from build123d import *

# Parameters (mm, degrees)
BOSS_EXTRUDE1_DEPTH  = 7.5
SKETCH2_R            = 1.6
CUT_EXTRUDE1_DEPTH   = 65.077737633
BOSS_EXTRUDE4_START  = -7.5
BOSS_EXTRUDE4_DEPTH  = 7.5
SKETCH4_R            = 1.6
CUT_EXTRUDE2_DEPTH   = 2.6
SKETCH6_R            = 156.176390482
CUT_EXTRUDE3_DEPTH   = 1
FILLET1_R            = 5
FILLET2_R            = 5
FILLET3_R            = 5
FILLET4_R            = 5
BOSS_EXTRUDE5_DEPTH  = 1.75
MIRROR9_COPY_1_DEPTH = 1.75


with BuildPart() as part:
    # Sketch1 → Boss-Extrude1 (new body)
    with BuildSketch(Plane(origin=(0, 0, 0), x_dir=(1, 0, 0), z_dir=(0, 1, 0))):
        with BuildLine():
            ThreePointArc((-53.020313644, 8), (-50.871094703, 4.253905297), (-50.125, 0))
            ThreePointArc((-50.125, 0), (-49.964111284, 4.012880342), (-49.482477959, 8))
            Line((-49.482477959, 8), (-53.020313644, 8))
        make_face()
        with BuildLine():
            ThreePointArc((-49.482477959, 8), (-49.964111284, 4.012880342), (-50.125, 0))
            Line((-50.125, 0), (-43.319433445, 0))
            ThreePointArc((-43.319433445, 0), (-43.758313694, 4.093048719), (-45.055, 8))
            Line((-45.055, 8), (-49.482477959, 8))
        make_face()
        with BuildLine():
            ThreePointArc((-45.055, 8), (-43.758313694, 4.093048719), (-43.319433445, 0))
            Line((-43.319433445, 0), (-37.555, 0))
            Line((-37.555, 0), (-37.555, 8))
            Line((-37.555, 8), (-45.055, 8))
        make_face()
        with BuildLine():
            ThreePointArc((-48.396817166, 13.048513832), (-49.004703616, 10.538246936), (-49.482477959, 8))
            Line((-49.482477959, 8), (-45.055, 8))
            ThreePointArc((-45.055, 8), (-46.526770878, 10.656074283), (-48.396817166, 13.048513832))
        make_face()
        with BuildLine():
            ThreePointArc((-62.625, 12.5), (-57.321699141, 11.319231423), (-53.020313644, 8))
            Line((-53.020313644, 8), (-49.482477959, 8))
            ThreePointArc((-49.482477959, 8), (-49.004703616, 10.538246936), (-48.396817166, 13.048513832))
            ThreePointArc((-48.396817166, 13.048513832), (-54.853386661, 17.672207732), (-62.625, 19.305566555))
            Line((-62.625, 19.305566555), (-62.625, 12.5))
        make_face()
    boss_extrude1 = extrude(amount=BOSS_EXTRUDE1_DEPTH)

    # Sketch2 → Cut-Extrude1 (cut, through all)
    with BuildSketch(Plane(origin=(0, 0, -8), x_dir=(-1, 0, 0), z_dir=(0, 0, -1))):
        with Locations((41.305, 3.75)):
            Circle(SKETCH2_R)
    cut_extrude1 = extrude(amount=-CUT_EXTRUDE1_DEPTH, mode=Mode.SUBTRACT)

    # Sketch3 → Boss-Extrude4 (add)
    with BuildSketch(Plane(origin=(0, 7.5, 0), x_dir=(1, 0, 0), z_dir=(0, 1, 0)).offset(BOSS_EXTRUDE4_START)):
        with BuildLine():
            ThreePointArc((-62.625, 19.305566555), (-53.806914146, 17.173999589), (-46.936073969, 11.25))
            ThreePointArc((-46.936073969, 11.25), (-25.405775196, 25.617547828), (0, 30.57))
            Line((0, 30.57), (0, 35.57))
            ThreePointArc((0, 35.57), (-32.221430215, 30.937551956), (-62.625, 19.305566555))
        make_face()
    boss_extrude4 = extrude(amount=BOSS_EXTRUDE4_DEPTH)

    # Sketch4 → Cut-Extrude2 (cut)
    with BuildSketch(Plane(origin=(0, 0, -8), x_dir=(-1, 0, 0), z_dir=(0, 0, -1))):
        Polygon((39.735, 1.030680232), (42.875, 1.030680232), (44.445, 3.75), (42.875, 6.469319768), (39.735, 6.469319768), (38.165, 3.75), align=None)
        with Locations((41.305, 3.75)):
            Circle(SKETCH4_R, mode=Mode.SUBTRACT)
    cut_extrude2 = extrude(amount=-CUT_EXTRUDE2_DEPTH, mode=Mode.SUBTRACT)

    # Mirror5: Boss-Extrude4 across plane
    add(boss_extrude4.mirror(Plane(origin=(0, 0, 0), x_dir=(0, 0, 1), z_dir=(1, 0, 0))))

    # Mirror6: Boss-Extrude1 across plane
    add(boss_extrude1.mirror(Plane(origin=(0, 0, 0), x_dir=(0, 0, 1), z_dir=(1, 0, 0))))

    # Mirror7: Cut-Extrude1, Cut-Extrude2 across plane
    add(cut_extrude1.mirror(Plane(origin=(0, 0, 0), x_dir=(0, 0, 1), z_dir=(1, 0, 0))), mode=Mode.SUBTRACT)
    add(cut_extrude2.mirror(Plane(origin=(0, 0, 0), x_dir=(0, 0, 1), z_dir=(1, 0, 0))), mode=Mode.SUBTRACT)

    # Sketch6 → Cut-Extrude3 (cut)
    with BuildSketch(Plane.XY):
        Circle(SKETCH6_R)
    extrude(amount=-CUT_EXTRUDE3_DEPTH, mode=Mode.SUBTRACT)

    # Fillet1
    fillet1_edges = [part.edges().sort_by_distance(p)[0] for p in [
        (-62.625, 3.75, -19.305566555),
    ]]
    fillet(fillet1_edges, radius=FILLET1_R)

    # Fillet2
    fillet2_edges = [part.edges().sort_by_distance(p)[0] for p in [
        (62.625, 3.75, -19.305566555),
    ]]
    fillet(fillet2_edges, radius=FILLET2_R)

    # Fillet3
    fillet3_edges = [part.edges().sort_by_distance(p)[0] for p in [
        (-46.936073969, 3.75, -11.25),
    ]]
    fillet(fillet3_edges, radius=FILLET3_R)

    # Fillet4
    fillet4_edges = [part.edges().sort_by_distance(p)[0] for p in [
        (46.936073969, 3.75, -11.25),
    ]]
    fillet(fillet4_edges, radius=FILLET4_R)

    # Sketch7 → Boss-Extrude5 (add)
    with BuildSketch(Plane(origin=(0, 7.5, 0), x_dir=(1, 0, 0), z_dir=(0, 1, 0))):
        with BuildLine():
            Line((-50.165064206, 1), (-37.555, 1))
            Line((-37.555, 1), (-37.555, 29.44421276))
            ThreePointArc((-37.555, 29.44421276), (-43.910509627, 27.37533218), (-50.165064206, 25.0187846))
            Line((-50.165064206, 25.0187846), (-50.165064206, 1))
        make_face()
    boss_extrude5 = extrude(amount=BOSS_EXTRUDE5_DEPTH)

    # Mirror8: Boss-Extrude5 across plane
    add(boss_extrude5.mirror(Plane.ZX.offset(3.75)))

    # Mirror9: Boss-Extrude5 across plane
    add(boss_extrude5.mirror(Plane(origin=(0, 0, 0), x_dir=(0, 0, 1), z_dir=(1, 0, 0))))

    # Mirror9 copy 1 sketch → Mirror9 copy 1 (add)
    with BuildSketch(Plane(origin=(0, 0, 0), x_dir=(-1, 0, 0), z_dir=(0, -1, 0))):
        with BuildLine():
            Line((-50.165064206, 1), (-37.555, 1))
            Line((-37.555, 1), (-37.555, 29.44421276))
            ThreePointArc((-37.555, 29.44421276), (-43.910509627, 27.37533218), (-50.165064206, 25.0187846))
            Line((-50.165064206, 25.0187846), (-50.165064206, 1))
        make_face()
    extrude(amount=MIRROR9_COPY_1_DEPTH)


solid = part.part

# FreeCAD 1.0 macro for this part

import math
import FreeCAD as App
import Part
import Sketcher
from FreeCAD import Vector
Q = App.Units.Quantity


def edges_at(feature, points):
    """Names of the edges that pass closest to the given points."""
    edges = feature.Shape.Edges
    near = lambda p: min(range(len(edges)), key=lambda i: edges[i].distToShape(Part.Vertex(*p))[0])
    return sorted({f"Edge{near(p) + 1}" for p in points})


def add_polygon(sketch, points):
    """Adds a closed chain of lines whose ends are joined by coincident constraints."""
    first, n = sketch.GeometryCount, len(points)
    for a, b in zip(points, points[1:] + points[:1]):
        sketch.addGeometry(Part.LineSegment(App.Vector(*a, 0), App.Vector(*b, 0)), False)
    for i in range(n):
        sketch.addConstraint(Sketcher.Constraint("Coincident", first + i, 2, first + (i + 1) % n, 1))

doc = App.newDocument("Part")
body = doc.addObject("PartDesign::Body", "Body")

sketch1 = body.newObject("Sketcher::SketchObject", "Sketch")
sketch1.AttachmentSupport = (doc.getObject("XZ_Plane"), [""])
sketch1.MapMode = "FlatFace"
sketch1.addGeometry([
    Part.ArcOfCircle(Part.Circle(Vector(-62.625, 0, 0), Vector(0, 0, 1), 12.5), math.radians(-39.79182), math.radians(0)),
    Part.LineSegment(Vector(-50.125, 0, 0), Vector(-37.555, 0, 0)),
    Part.LineSegment(Vector(-37.555, 0, 0), Vector(-37.555, -8, 0)),
    Part.LineSegment(Vector(-37.555, -8, 0), Vector(-45.055, -8, 0)),
    Part.ArcOfCircle(Part.Circle(Vector(-62.625, 0, 0), Vector(0, 0, 1), 19.305567), math.radians(-42.523602), math.radians(-24.480798)),
    Part.ArcOfCircle(Part.Circle(Vector(-62.625, 0, 0), Vector(0, 0, 1), 19.305567), math.radians(-90), math.radians(-42.523602)),
    Part.LineSegment(Vector(-62.625, -19.305567, 0), Vector(-62.625, -12.5, 0)),
    Part.ArcOfCircle(Part.Circle(Vector(-62.625, 0, 0), Vector(0, 0, 1), 12.5), math.radians(-90), math.radians(-39.791819)),
], False)
sketch1.addConstraint([
    Sketcher.Constraint("Coincident", 0, 2, 1, 1),
    Sketcher.Constraint("Coincident", 1, 2, 2, 1),
    Sketcher.Constraint("Coincident", 2, 2, 3, 1),
    Sketcher.Constraint("Coincident", 3, 2, 4, 2),
    Sketcher.Constraint("Tangent", 4, 1, 5, 2),
    Sketcher.Constraint("Coincident", 5, 1, 6, 1),
    Sketcher.Constraint("Coincident", 6, 2, 7, 1),
    Sketcher.Constraint("Tangent", 7, 2, 0, 1),
    Sketcher.Constraint("Horizontal", 1),
    Sketcher.Constraint("Vertical", 2),
    Sketcher.Constraint("Horizontal", 3),
    Sketcher.Constraint("Vertical", 6),
    Sketcher.Constraint("Coincident", 4, 3, 0, 3),
    Sketcher.Constraint("Equal", 4, 5),
    Sketcher.Constraint("Equal", 0, 7),
    Sketcher.Constraint("PointOnObject", 0, 3, -1),
    Sketcher.Constraint("PointOnObject", 0, 2, -1),
    Sketcher.Constraint("Horizontal", 3, 2, 7, 2),
    Sketcher.Constraint("Vertical", 7, 3, 5, 1),
    Sketcher.Constraint("Radius", 0, Q("12.5 mm")),
    Sketcher.Constraint("DistanceY", 2, 2, 2, 1, Q("8 mm")),
    Sketcher.Constraint("DistanceX", 3, 2, 3, 1, Q("7.5 mm")),
    Sketcher.Constraint("DistanceX", 1, 1, 1, 2, Q("12.57 mm")),
    Sketcher.Constraint("DistanceX", 0, 3, -1, 1, Q("62.625 mm")),
    Sketcher.Constraint("DistanceX", 4, 1, -1, 1, Q("48.396817 mm")),
])
pad1 = body.newObject("PartDesign::Pad", "Pad")
pad1.Profile = sketch1
pad1.Length = 7.5
pad1.Reversed = True

sketch2 = body.newObject("Sketcher::SketchObject", "Sketch001")
sketch2.AttachmentSupport = (doc.getObject("XY_Plane"), [""])
sketch2.MapMode = "FlatFace"
sketch2.AttachmentOffset = App.Placement(Vector(0, 0, -8), App.Rotation())
sketch2.addGeometry(Part.Circle(Vector(-41.305, 3.75, 0), Vector(0, 0, 1), 1.6), False)
sketch2.addConstraint([
    Sketcher.Constraint("Diameter", 0, Q("3.2 mm")),
    Sketcher.Constraint("DistanceY", -1, 1, 0, 3, Q("3.75 mm")),
    Sketcher.Constraint("DistanceX", 0, 3, -1, 1, Q("41.305 mm")),
])
pocket1 = body.newObject("PartDesign::Pocket", "Pocket")
pocket1.Profile = sketch2
pocket1.Type = "ThroughAll"
pocket1.Reversed = True

sketch3 = body.newObject("Sketcher::SketchObject", "Sketch002")
sketch3.AttachmentSupport = (doc.getObject("XZ_Plane"), [""])
sketch3.MapMode = "FlatFace"
sketch3.addGeometry([
    Part.ArcOfCircle(Part.Circle(Vector(-62.625, 0, 0), Vector(0, 0, 1), 19.305567), math.radians(-90), math.radians(-35.643032)),
    Part.ArcOfCircle(Part.Circle(Vector(-0.358421, 35.232579, 0), Vector(0, 0, 1), 65.803555), math.radians(-135.058535), math.radians(-89.687918)),
    Part.LineSegment(Vector(0, -30.57, 0), Vector(0, -35.57, 0)),
    Part.ArcOfCircle(Part.Circle(Vector(4.612587, 110.889113, 0), Vector(0, 0, 1), 146.531729), math.radians(-117.313587), math.radians(-91.803879)),
], False)
sketch3.addConstraint([
    Sketcher.Constraint("Coincident", 0, 2, 1, 1),
    Sketcher.Constraint("Coincident", 1, 2, 2, 1),
    Sketcher.Constraint("Coincident", 2, 2, 3, 2),
    Sketcher.Constraint("Coincident", 3, 1, 0, 1),
    Sketcher.Constraint("Vertical", 2),
    Sketcher.Constraint("PointOnObject", 0, 3, -1),
    Sketcher.Constraint("PointOnObject", 1, 2, -2),
    Sketcher.Constraint("Vertical", 0, 3, 3, 1),
    Sketcher.Constraint("DistanceY", 2, 2, 2, 1, Q("5 mm")),
    Sketcher.Constraint("DistanceY", 0, 2, -1, 1, Q("11.25 mm")),
    Sketcher.Constraint("DistanceY", 1, 2, -1, 1, Q("30.57 mm")),
    Sketcher.Constraint("Radius", 3, Q("146.531729 mm")),
    Sketcher.Constraint("DistanceX", 0, 3, -1, 1, Q("62.625 mm")),
    Sketcher.Constraint("Radius", 0, Q("19.305567 mm")),
    Sketcher.Constraint("Radius", 1, Q("65.803555 mm")),
])
pad2 = body.newObject("PartDesign::Pad", "Pad001")
pad2.Profile = sketch3
pad2.Length = 7.5
pad2.Reversed = True

sketch4 = body.newObject("Sketcher::SketchObject", "Sketch003")
sketch4.AttachmentSupport = (doc.getObject("XY_Plane"), [""])
sketch4.MapMode = "FlatFace"
sketch4.AttachmentOffset = App.Placement(Vector(0, 0, -8), App.Rotation())
add_polygon(sketch4, [(-39.735, 1.03068), (-42.875, 1.03068), (-44.445, 3.75), (-42.875, 6.46932), (-39.735, 6.46932), (-38.165, 3.75)])
sketch4.addGeometry(Part.Circle(Vector(-41.305, 3.75, 0), Vector(0, 0, 1), 1.6), False)
sketch4.addConstraint([
    Sketcher.Constraint("Horizontal", 0),
    Sketcher.Constraint("Horizontal", 3),
    Sketcher.Constraint("Parallel", 1, 4),
    Sketcher.Constraint("Parallel", 2, 5),
    Sketcher.Constraint("Horizontal", 6, 3, 1, 2),
    Sketcher.Constraint("Horizontal", 1, 2, 4, 2),
    Sketcher.Constraint("Vertical", 0, 2, 2, 2),
    Sketcher.Constraint("Vertical", 3, 2, 5, 2),
    Sketcher.Constraint("Diameter", 6, Q("3.2 mm")),
    Sketcher.Constraint("Angle", 1, Q("120 deg")),
    Sketcher.Constraint("DistanceX", 0, 2, 0, 1, Q("3.14 mm")),
    Sketcher.Constraint("Distance", 1, Q("3.14 mm")),
    Sketcher.Constraint("DistanceY", -1, 1, 6, 3, Q("3.75 mm")),
    Sketcher.Constraint("DistanceX", 0, 2, 6, 3, Q("1.57 mm")),
    Sketcher.Constraint("DistanceX", 6, 3, -1, 1, Q("41.305 mm")),
])
pocket2 = body.newObject("PartDesign::Pocket", "Pocket001")
pocket2.Profile = sketch4
pocket2.Length = 2.6
pocket2.Reversed = True
doc.recompute()

mirrored = body.newObject("PartDesign::Mirrored", "Mirrored")
mirrored.Originals = [pad2]
mirrored.MirrorPlane = (doc.getObject("YZ_Plane"), [""])
body.Tip = mirrored
doc.recompute()

mirrored2 = body.newObject("PartDesign::Mirrored", "Mirrored001")
mirrored2.Originals = [pad1]
mirrored2.MirrorPlane = (doc.getObject("YZ_Plane"), [""])
body.Tip = mirrored2
doc.recompute()

mirrored3 = body.newObject("PartDesign::Mirrored", "Mirrored002")
mirrored3.Originals = [pocket1, pocket2]
mirrored3.MirrorPlane = (doc.getObject("YZ_Plane"), [""])
body.Tip = mirrored3

sketch5 = body.newObject("Sketcher::SketchObject", "Sketch004")
sketch5.AttachmentSupport = (doc.getObject("XY_Plane"), [""])
sketch5.MapMode = "FlatFace"
sketch5.addGeometry(Part.Circle(Vector(0, 0, 0), Vector(0, 0, 1), 156.17639), False)
sketch5.addConstraint([
    Sketcher.Constraint("Coincident", 0, 3, -1, 1),
    Sketcher.Constraint("Diameter", 0, Q("312.352781 mm")),
])
pocket3 = body.newObject("PartDesign::Pocket", "Pocket002")
pocket3.Profile = sketch5
pocket3.Length = 1
doc.recompute()

fillet = body.newObject("PartDesign::Fillet", "Fillet")
fillet.Base = (pocket3, edges_at(pocket3, [(-62.625, 3.75, -19.306)]))
fillet.Radius = 5
doc.recompute()

fillet2 = body.newObject("PartDesign::Fillet", "Fillet001")
fillet2.Base = (fillet, edges_at(fillet, [(62.625, 3.75, -19.306)]))
fillet2.Radius = 5
doc.recompute()

fillet3 = body.newObject("PartDesign::Fillet", "Fillet002")
fillet3.Base = (fillet2, edges_at(fillet2, [(-46.936, 3.75, -11.25)]))
fillet3.Radius = 5
doc.recompute()

fillet4 = body.newObject("PartDesign::Fillet", "Fillet003")
fillet4.Base = (fillet3, edges_at(fillet3, [(46.936, 3.75, -11.25)]))
fillet4.Radius = 5

sketch6 = body.newObject("Sketcher::SketchObject", "Sketch005")
sketch6.AttachmentSupport = (doc.getObject("XZ_Plane"), [""])
sketch6.MapMode = "FlatFace"
sketch6.AttachmentOffset = App.Placement(Vector(0, 0, -7.5), App.Rotation())
sketch6.addGeometry([
    Part.LineSegment(Vector(-50.165064, -1, 0), Vector(-37.555, -1, 0)),
    Part.LineSegment(Vector(-37.555, -1, 0), Vector(-37.555, -29.444213, 0)),
    Part.ArcOfCircle(Part.Circle(Vector(4.612587, 110.889112, 0), Vector(0, 0, 1), 146.531729), math.radians(-111.95189), math.radians(-106.724558)),
    Part.LineSegment(Vector(-50.165064, -25.018785, 0), Vector(-50.165064, -1, 0)),
], False)
sketch6.addConstraint([
    Sketcher.Constraint("Coincident", 0, 2, 1, 1),
    Sketcher.Constraint("Coincident", 1, 2, 2, 2),
    Sketcher.Constraint("Coincident", 2, 1, 3, 1),
    Sketcher.Constraint("Coincident", 3, 2, 0, 1),
    Sketcher.Constraint("Horizontal", 0),
    Sketcher.Constraint("Vertical", 1),
    Sketcher.Constraint("Vertical", 3),
    Sketcher.Constraint("DistanceY", 0, 2, -1, 1, Q("1 mm")),
    Sketcher.Constraint("Radius", 2, Q("146.531729 mm")),
    Sketcher.Constraint("DistanceX", 0, 2, -1, 1, Q("37.555 mm")),
    Sketcher.Constraint("DistanceX", 0, 1, 0, 2, Q("12.610064 mm")),
    Sketcher.Constraint("DistanceY", 1, 2, 1, 1, Q("28.444213 mm")),
    Sketcher.Constraint("DistanceY", 3, 1, 3, 2, Q("24.018785 mm")),
])
pad3 = body.newObject("PartDesign::Pad", "Pad002")
pad3.Profile = sketch6
pad3.Length = 1.75
pad3.Reversed = True
doc.recompute()

datumplane = body.newObject("PartDesign::Plane", "DatumPlane")
datumplane.AttachmentSupport = (doc.getObject("XZ_Plane"), [""])
datumplane.MapMode = "FlatFace"
datumplane.AttachmentOffset = App.Placement(Vector(0, 0, -3.75), App.Rotation())
mirrored4 = body.newObject("PartDesign::Mirrored", "Mirrored003")
mirrored4.Originals = [pad3]
mirrored4.MirrorPlane = (datumplane, [""])
body.Tip = mirrored4
doc.recompute()

mirrored5 = body.newObject("PartDesign::Mirrored", "Mirrored004")
mirrored5.Originals = [pad3]
mirrored5.MirrorPlane = (doc.getObject("YZ_Plane"), [""])
body.Tip = mirrored5

sketch7 = body.newObject("Sketcher::SketchObject", "Sketch006")
sketch7.AttachmentSupport = (doc.getObject("XZ_Plane"), [""])
sketch7.MapMode = "FlatFace"
sketch7.addGeometry([
    Part.LineSegment(Vector(50.165064, -1, 0), Vector(37.555, -1, 0)),
    Part.LineSegment(Vector(37.555, -1, 0), Vector(37.555, -29.444213, 0)),
    Part.ArcOfCircle(Part.Circle(Vector(-4.612587, 110.889112, 0), Vector(0, 0, 1), 146.531729), math.radians(-73.275442), math.radians(-68.04811)),
    Part.LineSegment(Vector(50.165064, -25.018785, 0), Vector(50.165064, -1, 0)),
], False)
sketch7.addConstraint([
    Sketcher.Constraint("Coincident", 0, 2, 1, 1),
    Sketcher.Constraint("Coincident", 1, 2, 2, 1),
    Sketcher.Constraint("Coincident", 2, 2, 3, 1),
    Sketcher.Constraint("Coincident", 3, 2, 0, 1),
    Sketcher.Constraint("Horizontal", 0),
    Sketcher.Constraint("Vertical", 1),
    Sketcher.Constraint("Vertical", 3),
    Sketcher.Constraint("DistanceY", 0, 2, -1, 1, Q("1 mm")),
    Sketcher.Constraint("Radius", 2, Q("146.531729 mm")),
    Sketcher.Constraint("DistanceX", -1, 1, 0, 2, Q("37.555 mm")),
    Sketcher.Constraint("DistanceX", 0, 2, 0, 1, Q("12.610064 mm")),
    Sketcher.Constraint("DistanceY", 1, 2, 1, 1, Q("28.444213 mm")),
    Sketcher.Constraint("DistanceY", 3, 1, 3, 2, Q("24.018785 mm")),
])
pad4 = body.newObject("PartDesign::Pad", "Pad003")
pad4.Profile = sketch7
pad4.Length = 1.75

doc.recompute()
